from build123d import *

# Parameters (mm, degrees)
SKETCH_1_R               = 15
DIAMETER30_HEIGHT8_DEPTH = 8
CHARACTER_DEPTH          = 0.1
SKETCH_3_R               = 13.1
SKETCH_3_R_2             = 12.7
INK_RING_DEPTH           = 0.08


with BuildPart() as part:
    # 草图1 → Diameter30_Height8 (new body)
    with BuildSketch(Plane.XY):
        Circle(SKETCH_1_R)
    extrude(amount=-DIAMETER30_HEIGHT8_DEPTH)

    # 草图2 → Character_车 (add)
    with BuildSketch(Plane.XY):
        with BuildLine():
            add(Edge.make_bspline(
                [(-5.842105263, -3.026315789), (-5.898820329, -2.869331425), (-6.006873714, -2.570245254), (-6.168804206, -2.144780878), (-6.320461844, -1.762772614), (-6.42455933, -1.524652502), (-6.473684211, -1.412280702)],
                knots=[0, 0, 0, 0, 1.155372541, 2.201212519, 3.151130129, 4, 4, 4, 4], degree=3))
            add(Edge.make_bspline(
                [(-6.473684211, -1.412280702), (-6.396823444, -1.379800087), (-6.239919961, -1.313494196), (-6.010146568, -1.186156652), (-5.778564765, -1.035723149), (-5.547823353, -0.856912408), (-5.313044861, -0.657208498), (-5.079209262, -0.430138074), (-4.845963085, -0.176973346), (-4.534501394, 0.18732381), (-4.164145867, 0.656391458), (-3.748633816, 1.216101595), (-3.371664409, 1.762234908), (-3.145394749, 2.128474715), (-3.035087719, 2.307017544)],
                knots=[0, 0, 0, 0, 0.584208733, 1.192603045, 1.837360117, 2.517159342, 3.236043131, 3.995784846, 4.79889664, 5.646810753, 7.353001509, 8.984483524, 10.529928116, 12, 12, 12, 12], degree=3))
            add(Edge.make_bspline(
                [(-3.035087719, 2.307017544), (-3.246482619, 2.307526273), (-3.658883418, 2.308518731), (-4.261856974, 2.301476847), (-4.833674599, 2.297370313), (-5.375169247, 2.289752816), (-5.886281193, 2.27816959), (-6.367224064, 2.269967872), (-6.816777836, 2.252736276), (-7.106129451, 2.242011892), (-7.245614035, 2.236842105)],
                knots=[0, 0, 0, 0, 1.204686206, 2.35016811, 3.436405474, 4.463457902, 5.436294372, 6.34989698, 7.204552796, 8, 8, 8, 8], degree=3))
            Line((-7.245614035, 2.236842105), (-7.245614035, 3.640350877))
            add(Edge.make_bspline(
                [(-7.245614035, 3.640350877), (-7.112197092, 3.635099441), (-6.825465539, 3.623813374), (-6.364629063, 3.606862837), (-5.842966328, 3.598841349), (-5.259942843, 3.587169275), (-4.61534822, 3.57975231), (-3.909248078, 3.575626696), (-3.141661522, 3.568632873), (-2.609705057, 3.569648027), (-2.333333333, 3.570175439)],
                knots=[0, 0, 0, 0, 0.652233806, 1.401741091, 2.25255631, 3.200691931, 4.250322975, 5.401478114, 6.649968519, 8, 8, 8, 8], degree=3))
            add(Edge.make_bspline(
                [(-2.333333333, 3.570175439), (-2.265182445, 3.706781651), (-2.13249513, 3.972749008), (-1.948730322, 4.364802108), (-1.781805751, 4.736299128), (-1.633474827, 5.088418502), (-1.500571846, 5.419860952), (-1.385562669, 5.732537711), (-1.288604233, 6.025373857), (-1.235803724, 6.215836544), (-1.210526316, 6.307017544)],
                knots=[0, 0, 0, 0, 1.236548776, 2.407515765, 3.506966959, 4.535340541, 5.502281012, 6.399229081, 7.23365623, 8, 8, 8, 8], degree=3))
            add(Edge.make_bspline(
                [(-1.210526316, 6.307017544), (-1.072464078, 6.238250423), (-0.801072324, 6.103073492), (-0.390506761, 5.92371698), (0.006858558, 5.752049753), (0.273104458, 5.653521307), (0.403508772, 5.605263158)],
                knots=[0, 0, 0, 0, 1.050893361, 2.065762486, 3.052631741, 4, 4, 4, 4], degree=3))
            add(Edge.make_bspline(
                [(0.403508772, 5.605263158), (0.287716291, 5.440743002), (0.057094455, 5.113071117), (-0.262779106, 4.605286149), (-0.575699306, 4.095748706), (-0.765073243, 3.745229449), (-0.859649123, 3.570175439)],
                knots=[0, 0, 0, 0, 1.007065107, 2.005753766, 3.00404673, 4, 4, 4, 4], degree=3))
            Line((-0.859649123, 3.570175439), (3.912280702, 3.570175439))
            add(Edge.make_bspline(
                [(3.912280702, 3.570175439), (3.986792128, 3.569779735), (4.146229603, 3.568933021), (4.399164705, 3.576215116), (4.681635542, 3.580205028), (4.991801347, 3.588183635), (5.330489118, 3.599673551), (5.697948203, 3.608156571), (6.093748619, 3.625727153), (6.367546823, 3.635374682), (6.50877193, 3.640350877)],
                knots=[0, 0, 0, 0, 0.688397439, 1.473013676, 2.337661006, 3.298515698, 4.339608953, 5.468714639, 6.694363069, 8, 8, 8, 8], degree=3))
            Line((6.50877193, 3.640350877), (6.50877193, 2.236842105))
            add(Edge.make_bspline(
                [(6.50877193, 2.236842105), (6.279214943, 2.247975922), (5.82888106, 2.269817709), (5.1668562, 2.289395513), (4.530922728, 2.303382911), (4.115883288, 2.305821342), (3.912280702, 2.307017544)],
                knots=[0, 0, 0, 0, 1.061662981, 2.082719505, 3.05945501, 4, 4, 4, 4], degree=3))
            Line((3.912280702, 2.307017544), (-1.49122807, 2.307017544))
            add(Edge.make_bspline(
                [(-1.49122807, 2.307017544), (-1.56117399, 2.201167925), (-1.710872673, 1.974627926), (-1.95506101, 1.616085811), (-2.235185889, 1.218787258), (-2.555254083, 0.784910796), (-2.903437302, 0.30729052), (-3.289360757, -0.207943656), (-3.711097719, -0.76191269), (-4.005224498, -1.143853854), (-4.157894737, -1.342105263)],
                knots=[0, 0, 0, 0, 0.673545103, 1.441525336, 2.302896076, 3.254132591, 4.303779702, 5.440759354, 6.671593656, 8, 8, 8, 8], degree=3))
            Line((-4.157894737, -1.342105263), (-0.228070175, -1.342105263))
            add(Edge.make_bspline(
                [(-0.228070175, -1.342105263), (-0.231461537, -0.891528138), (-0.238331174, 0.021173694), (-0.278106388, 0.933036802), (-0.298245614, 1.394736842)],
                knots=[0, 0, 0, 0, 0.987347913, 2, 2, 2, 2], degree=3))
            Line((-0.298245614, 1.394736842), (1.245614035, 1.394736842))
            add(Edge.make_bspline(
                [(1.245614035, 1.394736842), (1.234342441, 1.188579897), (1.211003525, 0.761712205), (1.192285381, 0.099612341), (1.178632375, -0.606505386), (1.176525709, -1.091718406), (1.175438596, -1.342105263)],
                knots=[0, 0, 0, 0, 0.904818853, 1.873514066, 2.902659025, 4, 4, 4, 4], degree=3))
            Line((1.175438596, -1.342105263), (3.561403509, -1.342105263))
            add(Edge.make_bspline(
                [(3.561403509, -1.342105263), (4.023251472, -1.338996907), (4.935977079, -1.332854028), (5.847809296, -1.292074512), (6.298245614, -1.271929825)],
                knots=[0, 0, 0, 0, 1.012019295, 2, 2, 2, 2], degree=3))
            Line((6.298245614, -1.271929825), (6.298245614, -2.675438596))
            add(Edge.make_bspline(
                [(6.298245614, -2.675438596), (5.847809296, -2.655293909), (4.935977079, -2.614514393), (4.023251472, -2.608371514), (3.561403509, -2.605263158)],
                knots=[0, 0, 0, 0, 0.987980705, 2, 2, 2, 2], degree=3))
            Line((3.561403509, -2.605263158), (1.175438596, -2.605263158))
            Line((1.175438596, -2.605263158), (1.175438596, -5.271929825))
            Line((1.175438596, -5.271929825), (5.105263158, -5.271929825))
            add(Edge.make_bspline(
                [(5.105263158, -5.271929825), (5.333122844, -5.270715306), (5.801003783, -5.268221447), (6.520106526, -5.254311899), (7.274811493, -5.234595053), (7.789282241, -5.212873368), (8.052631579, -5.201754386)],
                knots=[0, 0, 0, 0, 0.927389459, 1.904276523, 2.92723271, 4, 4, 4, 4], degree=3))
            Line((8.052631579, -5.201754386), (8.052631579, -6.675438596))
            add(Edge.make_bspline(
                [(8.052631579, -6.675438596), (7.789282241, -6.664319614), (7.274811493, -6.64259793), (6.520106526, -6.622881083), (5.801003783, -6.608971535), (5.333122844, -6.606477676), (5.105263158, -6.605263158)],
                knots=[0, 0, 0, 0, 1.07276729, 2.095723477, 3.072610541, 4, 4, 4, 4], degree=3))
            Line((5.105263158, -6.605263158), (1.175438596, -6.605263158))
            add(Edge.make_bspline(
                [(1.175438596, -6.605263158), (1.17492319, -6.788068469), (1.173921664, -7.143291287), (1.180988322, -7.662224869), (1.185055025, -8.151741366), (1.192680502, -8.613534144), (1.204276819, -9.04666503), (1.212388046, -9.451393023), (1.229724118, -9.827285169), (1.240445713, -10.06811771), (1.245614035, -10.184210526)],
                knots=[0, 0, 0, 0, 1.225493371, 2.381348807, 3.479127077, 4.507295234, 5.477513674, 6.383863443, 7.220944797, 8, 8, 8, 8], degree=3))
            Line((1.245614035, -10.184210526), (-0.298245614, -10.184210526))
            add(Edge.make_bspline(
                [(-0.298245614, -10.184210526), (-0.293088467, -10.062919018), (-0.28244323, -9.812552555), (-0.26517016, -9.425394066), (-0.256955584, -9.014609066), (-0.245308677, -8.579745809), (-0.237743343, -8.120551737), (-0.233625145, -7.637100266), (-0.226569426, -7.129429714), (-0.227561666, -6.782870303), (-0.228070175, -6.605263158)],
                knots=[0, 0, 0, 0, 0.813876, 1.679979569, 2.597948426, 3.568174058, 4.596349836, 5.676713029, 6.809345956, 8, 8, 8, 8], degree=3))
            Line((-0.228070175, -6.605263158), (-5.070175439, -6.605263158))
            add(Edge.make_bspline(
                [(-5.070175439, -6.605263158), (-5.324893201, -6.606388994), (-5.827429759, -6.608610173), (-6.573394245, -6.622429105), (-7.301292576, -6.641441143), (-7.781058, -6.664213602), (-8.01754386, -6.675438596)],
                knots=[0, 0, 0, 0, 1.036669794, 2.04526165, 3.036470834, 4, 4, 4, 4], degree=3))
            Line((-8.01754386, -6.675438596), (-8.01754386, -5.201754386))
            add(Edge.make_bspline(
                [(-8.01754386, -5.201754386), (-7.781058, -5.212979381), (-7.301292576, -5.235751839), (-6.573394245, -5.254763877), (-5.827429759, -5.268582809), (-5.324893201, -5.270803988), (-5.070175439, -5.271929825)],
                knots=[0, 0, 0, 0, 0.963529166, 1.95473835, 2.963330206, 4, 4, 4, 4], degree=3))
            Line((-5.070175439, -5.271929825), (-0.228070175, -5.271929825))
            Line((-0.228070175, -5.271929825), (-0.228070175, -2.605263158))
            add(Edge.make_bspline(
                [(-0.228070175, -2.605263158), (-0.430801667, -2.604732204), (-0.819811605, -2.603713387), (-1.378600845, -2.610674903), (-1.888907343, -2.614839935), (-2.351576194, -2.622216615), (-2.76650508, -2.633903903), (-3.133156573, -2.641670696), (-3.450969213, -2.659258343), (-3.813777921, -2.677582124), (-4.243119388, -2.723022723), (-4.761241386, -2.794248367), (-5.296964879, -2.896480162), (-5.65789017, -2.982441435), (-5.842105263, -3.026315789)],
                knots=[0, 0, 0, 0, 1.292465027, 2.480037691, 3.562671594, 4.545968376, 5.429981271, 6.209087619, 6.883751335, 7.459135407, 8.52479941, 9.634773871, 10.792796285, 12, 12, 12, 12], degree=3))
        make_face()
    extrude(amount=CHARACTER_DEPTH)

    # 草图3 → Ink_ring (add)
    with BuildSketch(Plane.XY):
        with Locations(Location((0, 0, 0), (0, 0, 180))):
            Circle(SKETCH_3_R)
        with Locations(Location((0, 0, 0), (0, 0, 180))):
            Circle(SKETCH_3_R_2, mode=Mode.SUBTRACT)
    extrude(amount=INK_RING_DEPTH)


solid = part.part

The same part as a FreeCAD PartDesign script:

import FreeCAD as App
import Part
import Sketcher

V = App.Vector

doc = App.newDocument("Part")
body = doc.addObject("PartDesign::Body", "Body")

# Sketch on XY plane
sketch1 = doc.addObject("Sketcher::SketchObject", "Sketch")
body.addObject(sketch1)
sketch1.AttachmentSupport = (doc.XY_Plane, [""])
sketch1.MapMode = "FlatFace"
sketch1.addGeometry(Part.Circle(V(0, 0, 0), V(0, 0, 1), 15), False)
sketch1.addConstraint([
    Sketcher.Constraint("Coincident", 0, 3, -1, 1),
    Sketcher.Constraint("Diameter", 0, 30.0),
])
pad1 = doc.addObject("PartDesign::Pad", "Pad")
body.addObject(pad1)
pad1.Profile = sketch1
pad1.Length = 8
pad1.Reversed = True

# Sketch on XY plane
sketch2 = doc.addObject("Sketcher::SketchObject", "Sketch001")
body.addObject(sketch2)
sketch2.AttachmentSupport = (doc.XY_Plane, [""])
sketch2.MapMode = "FlatFace"
sketch2.addGeometry([
    Part.BSplineCurve([V(-5.842105, -3.026316, 0), V(-5.89882, -2.869331, 0), V(-6.006874, -2.570245, 0), V(-6.168804, -2.144781, 0), V(-6.320462, -1.762773, 0), V(-6.424559, -1.524653, 0), V(-6.473684, -1.412281, 0)], [4, 1, 1, 1, 4], [0, 1.155372541, 2.201212519, 3.151130129, 4], False, 3, [1, 1, 1, 1, 1, 1, 1], False),  # 0
    Part.BSplineCurve([V(-0.22807, -2.605263, 0), V(-0.430802, -2.604732, 0), V(-0.819812, -2.603713, 0), V(-1.378601, -2.610675, 0), V(-1.888907, -2.61484, 0), V(-2.351576, -2.622217, 0), V(-2.766505, -2.633904, 0), V(-3.133157, -2.641671, 0), V(-3.450969, -2.659258, 0), V(-3.813778, -2.677582, 0), V(-4.243119, -2.723023, 0), V(-4.761241, -2.794248, 0), V(-5.296965, -2.89648, 0), V(-5.65789, -2.982441, 0), V(-5.842105, -3.026316, 0)], [4, 1, 1, 1, 1, 1, 1, 1, 1, 1, 1, 1, 4], [0, 1.292465027, 2.480037691, 3.562671594, 4.545968376, 5.429981271, 6.209087619, 6.883751335, 7.459135407, 8.52479941, 9.634773871, 10.792796285, 12], False, 3, [1, 1, 1, 1, 1, 1, 1, 1, 1, 1, 1, 1, 1, 1, 1], False),  # 1
    Part.LineSegment(V(-0.22807, -2.605263, 0), V(-0.22807, -5.27193, 0)),  # 2
    Part.LineSegment(V(-0.22807, -5.27193, 0), V(-5.070175, -5.27193, 0)),  # 3
    Part.BSplineCurve([V(-8.017544, -5.201754, 0), V(-7.781058, -5.212979, 0), V(-7.301293, -5.235752, 0), V(-6.573394, -5.254764, 0), V(-5.82743, -5.268583, 0), V(-5.324893, -5.270804, 0), V(-5.070175, -5.27193, 0)], [4, 1, 1, 1, 4], [0, 0.963529166, 1.95473835, 2.963330206, 4], False, 3, [1, 1, 1, 1, 1, 1, 1], False),  # 4
    Part.LineSegment(V(-8.017544, -5.201754, 0), V(-8.017544, -6.675439, 0)),  # 5
    Part.BSplineCurve([V(-5.070175, -6.605263, 0), V(-5.324893, -6.606389, 0), V(-5.82743, -6.60861, 0), V(-6.573394, -6.622429, 0), V(-7.301293, -6.641441, 0), V(-7.781058, -6.664214, 0), V(-8.017544, -6.675439, 0)], [4, 1, 1, 1, 4], [0, 1.036669794, 2.04526165, 3.036470834, 4], False, 3, [1, 1, 1, 1, 1, 1, 1], False),  # 6
    Part.LineSegment(V(-5.070175, -6.605263, 0), V(-0.22807, -6.605263, 0)),  # 7
    Part.BSplineCurve([V(-0.298246, -10.184211, 0), V(-0.293088, -10.062919, 0), V(-0.282443, -9.812553, 0), V(-0.26517, -9.425394, 0), V(-0.256956, -9.014609, 0), V(-0.245309, -8.579746, 0), V(-0.237743, -8.120552, 0), V(-0.233625, -7.6371, 0), V(-0.226569, -7.12943, 0), V(-0.227562, -6.78287, 0), V(-0.22807, -6.605263, 0)], [4, 1, 1, 1, 1, 1, 1, 1, 4], [0, 0.813876, 1.679979569, 2.597948426, 3.568174058, 4.596349836, 5.676713029, 6.809345956, 8], False, 3, [1, 1, 1, 1, 1, 1, 1, 1, 1, 1, 1], False),  # 8
    Part.LineSegment(V(-0.298246, -10.184211, 0), V(1.245614, -10.184211, 0)),  # 9
    Part.BSplineCurve([V(1.175439, -6.605263, 0), V(1.174923, -6.788068, 0), V(1.173922, -7.143291, 0), V(1.180988, -7.662225, 0), V(1.185055, -8.151741, 0), V(1.192681, -8.613534, 0), V(1.204277, -9.046665, 0), V(1.212388, -9.451393, 0), V(1.229724, -9.827285, 0), V(1.240446, -10.068118, 0), V(1.245614, -10.184211, 0)], [4, 1, 1, 1, 1, 1, 1, 1, 4], [0, 1.225493371, 2.381348807, 3.479127077, 4.507295234, 5.477513674, 6.383863443, 7.220944797, 8], False, 3, [1, 1, 1, 1, 1, 1, 1, 1, 1, 1, 1], False),  # 10
    Part.LineSegment(V(1.175439, -6.605263, 0), V(5.105263, -6.605263, 0)),  # 11
    Part.BSplineCurve([V(8.052632, -6.675439, 0), V(7.789282, -6.66432, 0), V(7.274811, -6.642598, 0), V(6.520107, -6.622881, 0), V(5.801004, -6.608972, 0), V(5.333123, -6.606478, 0), V(5.105263, -6.605263, 0)], [4, 1, 1, 1, 4], [0, 1.07276729, 2.095723477, 3.072610541, 4], False, 3, [1, 1, 1, 1, 1, 1, 1], False),  # 12
    Part.LineSegment(V(8.052632, -6.675439, 0), V(8.052632, -5.201754, 0)),  # 13
    Part.BSplineCurve([V(5.105263, -5.27193, 0), V(5.333123, -5.270715, 0), V(5.801004, -5.268221, 0), V(6.520107, -5.254312, 0), V(7.274811, -5.234595, 0), V(7.789282, -5.212873, 0), V(8.052632, -5.201754, 0)], [4, 1, 1, 1, 4], [0, 0.927389459, 1.904276523, 2.92723271, 4], False, 3, [1, 1, 1, 1, 1, 1, 1], False),  # 14
    Part.LineSegment(V(5.105263, -5.27193, 0), V(1.175439, -5.27193, 0)),  # 15
    Part.LineSegment(V(1.175439, -5.27193, 0), V(1.175439, -2.605263, 0)),  # 16
    Part.LineSegment(V(1.175439, -2.605263, 0), V(3.561404, -2.605263, 0)),  # 17
    Part.BSplineCurve([V(6.298246, -2.675439, 0), V(5.847809, -2.655294, 0), V(4.935977, -2.614514, 0), V(4.023251, -2.608372, 0), V(3.561404, -2.605263, 0)], [4, 1, 4], [0, 0.987980705, 2], False, 3, [1, 1, 1, 1, 1], False),  # 18
    Part.LineSegment(V(6.298246, -2.675439, 0), V(6.298246, -1.27193, 0)),  # 19
    Part.BSplineCurve([V(3.561404, -1.342105, 0), V(4.023251, -1.338997, 0), V(4.935977, -1.332854, 0), V(5.847809, -1.292075, 0), V(6.298246, -1.27193, 0)], [4, 1, 4], [0, 1.012019295, 2], False, 3, [1, 1, 1, 1, 1], False),  # 20
    Part.LineSegment(V(3.561404, -1.342105, 0), V(1.175439, -1.342105, 0)),  # 21
    Part.BSplineCurve([V(1.245614, 1.394737, 0), V(1.234342, 1.18858, 0), V(1.211004, 0.761712, 0), V(1.192285, 0.099612, 0), V(1.178632, -0.606505, 0), V(1.176526, -1.091718, 0), V(1.175439, -1.342105, 0)], [4, 1, 1, 1, 4], [0, 0.904818853, 1.873514066, 2.902659025, 4], False, 3, [1, 1, 1, 1, 1, 1, 1], False),  # 22
    Part.LineSegment(V(1.245614, 1.394737, 0), V(-0.298246, 1.394737, 0)),  # 23
    Part.BSplineCurve([V(-0.22807, -1.342105, 0), V(-0.231462, -0.891528, 0), V(-0.238331, 0.021174, 0), V(-0.278106, 0.933037, 0), V(-0.298246, 1.394737, 0)], [4, 1, 4], [0, 0.987347913, 2], False, 3, [1, 1, 1, 1, 1], False),  # 24
    Part.LineSegment(V(-0.22807, -1.342105, 0), V(-4.157895, -1.342105, 0)),  # 25
    Part.BSplineCurve([V(-1.491228, 2.307018, 0), V(-1.561174, 2.201168, 0), V(-1.710873, 1.974628, 0), V(-1.955061, 1.616086, 0), V(-2.235186, 1.218787, 0), V(-2.555254, 0.784911, 0), V(-2.903437, 0.307291, 0), V(-3.289361, -0.207944, 0), V(-3.711098, -0.761913, 0), V(-4.005224, -1.143854, 0), V(-4.157895, -1.342105, 0)], [4, 1, 1, 1, 1, 1, 1, 1, 4], [0, 0.673545103, 1.441525336, 2.302896076, 3.254132591, 4.303779702, 5.440759354, 6.671593656, 8], False, 3, [1, 1, 1, 1, 1, 1, 1, 1, 1, 1, 1], False),  # 26
    Part.LineSegment(V(-1.491228, 2.307018, 0), V(3.912281, 2.307018, 0)),  # 27
    Part.BSplineCurve([V(6.508772, 2.236842, 0), V(6.279215, 2.247976, 0), V(5.828881, 2.269818, 0), V(5.166856, 2.289396, 0), V(4.530923, 2.303383, 0), V(4.115883, 2.305821, 0), V(3.912281, 2.307018, 0)], [4, 1, 1, 1, 4], [0, 1.061662981, 2.082719505, 3.05945501, 4], False, 3, [1, 1, 1, 1, 1, 1, 1], False),  # 28
    Part.LineSegment(V(6.508772, 2.236842, 0), V(6.508772, 3.640351, 0)),  # 29
    Part.BSplineCurve([V(3.912281, 3.570175, 0), V(3.986792, 3.56978, 0), V(4.14623, 3.568933, 0), V(4.399165, 3.576215, 0), V(4.681636, 3.580205, 0), V(4.991801, 3.588184, 0), V(5.330489, 3.599674, 0), V(5.697948, 3.608157, 0), V(6.093749, 3.625727, 0), V(6.367547, 3.635375, 0), V(6.508772, 3.640351, 0)], [4, 1, 1, 1, 1, 1, 1, 1, 4], [0, 0.688397439, 1.473013676, 2.337661006, 3.298515698, 4.339608953, 5.468714639, 6.694363069, 8], False, 3, [1, 1, 1, 1, 1, 1, 1, 1, 1, 1, 1], False),  # 30
    Part.LineSegment(V(3.912281, 3.570175, 0), V(-0.859649, 3.570175, 0)),  # 31
    Part.BSplineCurve([V(0.403509, 5.605263, 0), V(0.287716, 5.440743, 0), V(0.057094, 5.113071, 0), V(-0.262779, 4.605286, 0), V(-0.575699, 4.095749, 0), V(-0.765073, 3.745229, 0), V(-0.859649, 3.570175, 0)], [4, 1, 1, 1, 4], [0, 1.007065107, 2.005753766, 3.00404673, 4], False, 3, [1, 1, 1, 1, 1, 1, 1], False),  # 32
    Part.BSplineCurve([V(-1.210526, 6.307018, 0), V(-1.072464, 6.23825, 0), V(-0.801072, 6.103073, 0), V(-0.390507, 5.923717, 0), V(0.006859, 5.75205, 0), V(0.273104, 5.653521, 0), V(0.403509, 5.605263, 0)], [4, 1, 1, 1, 4], [0, 1.050893361, 2.065762486, 3.052631741, 4], False, 3, [1, 1, 1, 1, 1, 1, 1], False),  # 33
    Part.BSplineCurve([V(-2.333333, 3.570175, 0), V(-2.265182, 3.706782, 0), V(-2.132495, 3.972749, 0), V(-1.94873, 4.364802, 0), V(-1.781806, 4.736299, 0), V(-1.633475, 5.088419, 0), V(-1.500572, 5.419861, 0), V(-1.385563, 5.732538, 0), V(-1.288604, 6.025374, 0), V(-1.235804, 6.215837, 0), V(-1.210526, 6.307018, 0)], [4, 1, 1, 1, 1, 1, 1, 1, 4], [0, 1.236548776, 2.407515765, 3.506966959, 4.535340541, 5.502281012, 6.399229081, 7.23365623, 8], False, 3, [1, 1, 1, 1, 1, 1, 1, 1, 1, 1, 1], False),  # 34
    Part.BSplineCurve([V(-7.245614, 3.640351, 0), V(-7.112197, 3.635099, 0), V(-6.825466, 3.623813, 0), V(-6.364629, 3.606863, 0), V(-5.842966, 3.598841, 0), V(-5.259943, 3.587169, 0), V(-4.615348, 3.579752, 0), V(-3.909248, 3.575627, 0), V(-3.141662, 3.568633, 0), V(-2.609705, 3.569648, 0), V(-2.333333, 3.570175, 0)], [4, 1, 1, 1, 1, 1, 1, 1, 4], [0, 0.652233806, 1.401741091, 2.25255631, 3.200691931, 4.250322975, 5.401478114, 6.649968519, 8], False, 3, [1, 1, 1, 1, 1, 1, 1, 1, 1, 1, 1], False),  # 35
    Part.LineSegment(V(-7.245614, 3.640351, 0), V(-7.245614, 2.236842, 0)),  # 36
    Part.BSplineCurve([V(-3.035088, 2.307018, 0), V(-3.246483, 2.307526, 0), V(-3.658883, 2.308519, 0), V(-4.261857, 2.301477, 0), V(-4.833675, 2.29737, 0), V(-5.375169, 2.289753, 0), V(-5.886281, 2.27817, 0), V(-6.367224, 2.269968, 0), V(-6.816778, 2.252736, 0), V(-7.106129, 2.242012, 0), V(-7.245614, 2.236842, 0)], [4, 1, 1, 1, 1, 1, 1, 1, 4], [0, 1.204686206, 2.35016811, 3.436405474, 4.463457902, 5.436294372, 6.34989698, 7.204552796, 8], False, 3, [1, 1, 1, 1, 1, 1, 1, 1, 1, 1, 1], False),  # 37
    Part.BSplineCurve([V(-6.473684, -1.412281, 0), V(-6.396823, -1.3798, 0), V(-6.23992, -1.313494, 0), V(-6.010147, -1.186157, 0), V(-5.778565, -1.035723, 0), V(-5.547823, -0.856912, 0), V(-5.313045, -0.657208, 0), V(-5.079209, -0.430138, 0), V(-4.845963, -0.176973, 0), V(-4.534501, 0.187324, 0), V(-4.164146, 0.656391, 0), V(-3.748634, 1.216102, 0), V(-3.371664, 1.762235, 0), V(-3.145395, 2.128475, 0), V(-3.035088, 2.307018, 0)], [4, 1, 1, 1, 1, 1, 1, 1, 1, 1, 1, 1, 4], [0, 0.584208733, 1.192603045, 1.837360117, 2.517159342, 3.236043131, 3.995784846, 4.79889664, 5.646810753, 7.353001509, 8.984483524, 10.529928116, 12], False, 3, [1, 1, 1, 1, 1, 1, 1, 1, 1, 1, 1, 1, 1, 1, 1], False),  # 38
], False)
sketch2.addConstraint([
    Sketcher.Constraint("Block", 0),
    Sketcher.Constraint("Block", 1),
    Sketcher.Constraint("Block", 4),
    Sketcher.Constraint("Block", 6),
    Sketcher.Constraint("Block", 8),
    Sketcher.Constraint("Block", 10),
    Sketcher.Constraint("Block", 12),
    Sketcher.Constraint("Block", 14),
    Sketcher.Constraint("Block", 18),
    Sketcher.Constraint("Block", 20),
    Sketcher.Constraint("Block", 22),
    Sketcher.Constraint("Block", 24),
    Sketcher.Constraint("Block", 26),
    Sketcher.Constraint("Block", 28),
    Sketcher.Constraint("Block", 30),
    Sketcher.Constraint("Block", 32),
    Sketcher.Constraint("Block", 33),
    Sketcher.Constraint("Block", 34),
    Sketcher.Constraint("Block", 35),
    Sketcher.Constraint("Block", 37),
    Sketcher.Constraint("Block", 38),
    Sketcher.Constraint("Coincident", 1, 1, 2, 1),
    Sketcher.Constraint("Coincident", 2, 2, 3, 1),
    Sketcher.Constraint("Coincident", 3, 2, 4, 2),
    Sketcher.Constraint("Coincident", 4, 1, 5, 1),
    Sketcher.Constraint("Coincident", 5, 2, 6, 2),
    Sketcher.Constraint("Coincident", 6, 1, 7, 1),
    Sketcher.Constraint("Coincident", 7, 2, 8, 2),
    Sketcher.Constraint("Coincident", 8, 1, 9, 1),
    Sketcher.Constraint("Coincident", 9, 2, 10, 2),
    Sketcher.Constraint("Coincident", 10, 1, 11, 1),
    Sketcher.Constraint("Coincident", 11, 2, 12, 2),
    Sketcher.Constraint("Coincident", 12, 1, 13, 1),
    Sketcher.Constraint("Coincident", 13, 2, 14, 2),
    Sketcher.Constraint("Coincident", 14, 1, 15, 1),
    Sketcher.Constraint("Coincident", 15, 2, 16, 1),
    Sketcher.Constraint("Coincident", 16, 2, 17, 1),
    Sketcher.Constraint("Coincident", 17, 2, 18, 2),
    Sketcher.Constraint("Coincident", 18, 1, 19, 1),
    Sketcher.Constraint("Coincident", 19, 2, 20, 2),
    Sketcher.Constraint("Coincident", 20, 1, 21, 1),
    Sketcher.Constraint("Coincident", 21, 2, 22, 2),
    Sketcher.Constraint("Coincident", 22, 1, 23, 1),
    Sketcher.Constraint("Coincident", 23, 2, 24, 2),
    Sketcher.Constraint("Coincident", 24, 1, 25, 1),
    Sketcher.Constraint("Coincident", 25, 2, 26, 2),
    Sketcher.Constraint("Coincident", 26, 1, 27, 1),
    Sketcher.Constraint("Coincident", 27, 2, 28, 2),
    Sketcher.Constraint("Coincident", 28, 1, 29, 1),
    Sketcher.Constraint("Coincident", 29, 2, 30, 2),
    Sketcher.Constraint("Coincident", 30, 1, 31, 1),
    Sketcher.Constraint("Coincident", 31, 2, 32, 2),
    Sketcher.Constraint("Coincident", 35, 1, 36, 1),
    Sketcher.Constraint("Coincident", 36, 2, 37, 2),
    Sketcher.Constraint("Vertical", 2),
    Sketcher.Constraint("Horizontal", 3),
    Sketcher.Constraint("Horizontal", 15),
    Sketcher.Constraint("Vertical", 16),
    Sketcher.Constraint("Horizontal", 17),
    Sketcher.Constraint("Vertical", 16, 2, 21, 2),
])
pad2 = doc.addObject("PartDesign::Pad", "Pad001")
body.addObject(pad2)
pad2.Profile = sketch2
pad2.Length = 0.1

# Sketch on XY plane
sketch3 = doc.addObject("Sketcher::SketchObject", "Sketch002")
body.addObject(sketch3)
sketch3.AttachmentSupport = (doc.XY_Plane, [""])
sketch3.MapMode = "FlatFace"
sketch3.addGeometry([
    Part.Circle(V(0, 0, 0), V(0, 0, 1), 13.1),
    Part.Circle(V(0, 0, 0), V(0, 0, 1), 12.7),
], False)
sketch3.addConstraint([
    Sketcher.Constraint("Coincident", 0, 3, -1, 1),
    Sketcher.Constraint("Coincident", 1, 3, -1, 1),
    Sketcher.Constraint("Diameter", 0, 26.2),
    Sketcher.Constraint("Diameter", 1, 25.4),
])
pad3 = doc.addObject("PartDesign::Pad", "Pad002")
body.addObject(pad3)
pad3.Profile = sketch3
pad3.Length = 0.08

doc.recompute()
